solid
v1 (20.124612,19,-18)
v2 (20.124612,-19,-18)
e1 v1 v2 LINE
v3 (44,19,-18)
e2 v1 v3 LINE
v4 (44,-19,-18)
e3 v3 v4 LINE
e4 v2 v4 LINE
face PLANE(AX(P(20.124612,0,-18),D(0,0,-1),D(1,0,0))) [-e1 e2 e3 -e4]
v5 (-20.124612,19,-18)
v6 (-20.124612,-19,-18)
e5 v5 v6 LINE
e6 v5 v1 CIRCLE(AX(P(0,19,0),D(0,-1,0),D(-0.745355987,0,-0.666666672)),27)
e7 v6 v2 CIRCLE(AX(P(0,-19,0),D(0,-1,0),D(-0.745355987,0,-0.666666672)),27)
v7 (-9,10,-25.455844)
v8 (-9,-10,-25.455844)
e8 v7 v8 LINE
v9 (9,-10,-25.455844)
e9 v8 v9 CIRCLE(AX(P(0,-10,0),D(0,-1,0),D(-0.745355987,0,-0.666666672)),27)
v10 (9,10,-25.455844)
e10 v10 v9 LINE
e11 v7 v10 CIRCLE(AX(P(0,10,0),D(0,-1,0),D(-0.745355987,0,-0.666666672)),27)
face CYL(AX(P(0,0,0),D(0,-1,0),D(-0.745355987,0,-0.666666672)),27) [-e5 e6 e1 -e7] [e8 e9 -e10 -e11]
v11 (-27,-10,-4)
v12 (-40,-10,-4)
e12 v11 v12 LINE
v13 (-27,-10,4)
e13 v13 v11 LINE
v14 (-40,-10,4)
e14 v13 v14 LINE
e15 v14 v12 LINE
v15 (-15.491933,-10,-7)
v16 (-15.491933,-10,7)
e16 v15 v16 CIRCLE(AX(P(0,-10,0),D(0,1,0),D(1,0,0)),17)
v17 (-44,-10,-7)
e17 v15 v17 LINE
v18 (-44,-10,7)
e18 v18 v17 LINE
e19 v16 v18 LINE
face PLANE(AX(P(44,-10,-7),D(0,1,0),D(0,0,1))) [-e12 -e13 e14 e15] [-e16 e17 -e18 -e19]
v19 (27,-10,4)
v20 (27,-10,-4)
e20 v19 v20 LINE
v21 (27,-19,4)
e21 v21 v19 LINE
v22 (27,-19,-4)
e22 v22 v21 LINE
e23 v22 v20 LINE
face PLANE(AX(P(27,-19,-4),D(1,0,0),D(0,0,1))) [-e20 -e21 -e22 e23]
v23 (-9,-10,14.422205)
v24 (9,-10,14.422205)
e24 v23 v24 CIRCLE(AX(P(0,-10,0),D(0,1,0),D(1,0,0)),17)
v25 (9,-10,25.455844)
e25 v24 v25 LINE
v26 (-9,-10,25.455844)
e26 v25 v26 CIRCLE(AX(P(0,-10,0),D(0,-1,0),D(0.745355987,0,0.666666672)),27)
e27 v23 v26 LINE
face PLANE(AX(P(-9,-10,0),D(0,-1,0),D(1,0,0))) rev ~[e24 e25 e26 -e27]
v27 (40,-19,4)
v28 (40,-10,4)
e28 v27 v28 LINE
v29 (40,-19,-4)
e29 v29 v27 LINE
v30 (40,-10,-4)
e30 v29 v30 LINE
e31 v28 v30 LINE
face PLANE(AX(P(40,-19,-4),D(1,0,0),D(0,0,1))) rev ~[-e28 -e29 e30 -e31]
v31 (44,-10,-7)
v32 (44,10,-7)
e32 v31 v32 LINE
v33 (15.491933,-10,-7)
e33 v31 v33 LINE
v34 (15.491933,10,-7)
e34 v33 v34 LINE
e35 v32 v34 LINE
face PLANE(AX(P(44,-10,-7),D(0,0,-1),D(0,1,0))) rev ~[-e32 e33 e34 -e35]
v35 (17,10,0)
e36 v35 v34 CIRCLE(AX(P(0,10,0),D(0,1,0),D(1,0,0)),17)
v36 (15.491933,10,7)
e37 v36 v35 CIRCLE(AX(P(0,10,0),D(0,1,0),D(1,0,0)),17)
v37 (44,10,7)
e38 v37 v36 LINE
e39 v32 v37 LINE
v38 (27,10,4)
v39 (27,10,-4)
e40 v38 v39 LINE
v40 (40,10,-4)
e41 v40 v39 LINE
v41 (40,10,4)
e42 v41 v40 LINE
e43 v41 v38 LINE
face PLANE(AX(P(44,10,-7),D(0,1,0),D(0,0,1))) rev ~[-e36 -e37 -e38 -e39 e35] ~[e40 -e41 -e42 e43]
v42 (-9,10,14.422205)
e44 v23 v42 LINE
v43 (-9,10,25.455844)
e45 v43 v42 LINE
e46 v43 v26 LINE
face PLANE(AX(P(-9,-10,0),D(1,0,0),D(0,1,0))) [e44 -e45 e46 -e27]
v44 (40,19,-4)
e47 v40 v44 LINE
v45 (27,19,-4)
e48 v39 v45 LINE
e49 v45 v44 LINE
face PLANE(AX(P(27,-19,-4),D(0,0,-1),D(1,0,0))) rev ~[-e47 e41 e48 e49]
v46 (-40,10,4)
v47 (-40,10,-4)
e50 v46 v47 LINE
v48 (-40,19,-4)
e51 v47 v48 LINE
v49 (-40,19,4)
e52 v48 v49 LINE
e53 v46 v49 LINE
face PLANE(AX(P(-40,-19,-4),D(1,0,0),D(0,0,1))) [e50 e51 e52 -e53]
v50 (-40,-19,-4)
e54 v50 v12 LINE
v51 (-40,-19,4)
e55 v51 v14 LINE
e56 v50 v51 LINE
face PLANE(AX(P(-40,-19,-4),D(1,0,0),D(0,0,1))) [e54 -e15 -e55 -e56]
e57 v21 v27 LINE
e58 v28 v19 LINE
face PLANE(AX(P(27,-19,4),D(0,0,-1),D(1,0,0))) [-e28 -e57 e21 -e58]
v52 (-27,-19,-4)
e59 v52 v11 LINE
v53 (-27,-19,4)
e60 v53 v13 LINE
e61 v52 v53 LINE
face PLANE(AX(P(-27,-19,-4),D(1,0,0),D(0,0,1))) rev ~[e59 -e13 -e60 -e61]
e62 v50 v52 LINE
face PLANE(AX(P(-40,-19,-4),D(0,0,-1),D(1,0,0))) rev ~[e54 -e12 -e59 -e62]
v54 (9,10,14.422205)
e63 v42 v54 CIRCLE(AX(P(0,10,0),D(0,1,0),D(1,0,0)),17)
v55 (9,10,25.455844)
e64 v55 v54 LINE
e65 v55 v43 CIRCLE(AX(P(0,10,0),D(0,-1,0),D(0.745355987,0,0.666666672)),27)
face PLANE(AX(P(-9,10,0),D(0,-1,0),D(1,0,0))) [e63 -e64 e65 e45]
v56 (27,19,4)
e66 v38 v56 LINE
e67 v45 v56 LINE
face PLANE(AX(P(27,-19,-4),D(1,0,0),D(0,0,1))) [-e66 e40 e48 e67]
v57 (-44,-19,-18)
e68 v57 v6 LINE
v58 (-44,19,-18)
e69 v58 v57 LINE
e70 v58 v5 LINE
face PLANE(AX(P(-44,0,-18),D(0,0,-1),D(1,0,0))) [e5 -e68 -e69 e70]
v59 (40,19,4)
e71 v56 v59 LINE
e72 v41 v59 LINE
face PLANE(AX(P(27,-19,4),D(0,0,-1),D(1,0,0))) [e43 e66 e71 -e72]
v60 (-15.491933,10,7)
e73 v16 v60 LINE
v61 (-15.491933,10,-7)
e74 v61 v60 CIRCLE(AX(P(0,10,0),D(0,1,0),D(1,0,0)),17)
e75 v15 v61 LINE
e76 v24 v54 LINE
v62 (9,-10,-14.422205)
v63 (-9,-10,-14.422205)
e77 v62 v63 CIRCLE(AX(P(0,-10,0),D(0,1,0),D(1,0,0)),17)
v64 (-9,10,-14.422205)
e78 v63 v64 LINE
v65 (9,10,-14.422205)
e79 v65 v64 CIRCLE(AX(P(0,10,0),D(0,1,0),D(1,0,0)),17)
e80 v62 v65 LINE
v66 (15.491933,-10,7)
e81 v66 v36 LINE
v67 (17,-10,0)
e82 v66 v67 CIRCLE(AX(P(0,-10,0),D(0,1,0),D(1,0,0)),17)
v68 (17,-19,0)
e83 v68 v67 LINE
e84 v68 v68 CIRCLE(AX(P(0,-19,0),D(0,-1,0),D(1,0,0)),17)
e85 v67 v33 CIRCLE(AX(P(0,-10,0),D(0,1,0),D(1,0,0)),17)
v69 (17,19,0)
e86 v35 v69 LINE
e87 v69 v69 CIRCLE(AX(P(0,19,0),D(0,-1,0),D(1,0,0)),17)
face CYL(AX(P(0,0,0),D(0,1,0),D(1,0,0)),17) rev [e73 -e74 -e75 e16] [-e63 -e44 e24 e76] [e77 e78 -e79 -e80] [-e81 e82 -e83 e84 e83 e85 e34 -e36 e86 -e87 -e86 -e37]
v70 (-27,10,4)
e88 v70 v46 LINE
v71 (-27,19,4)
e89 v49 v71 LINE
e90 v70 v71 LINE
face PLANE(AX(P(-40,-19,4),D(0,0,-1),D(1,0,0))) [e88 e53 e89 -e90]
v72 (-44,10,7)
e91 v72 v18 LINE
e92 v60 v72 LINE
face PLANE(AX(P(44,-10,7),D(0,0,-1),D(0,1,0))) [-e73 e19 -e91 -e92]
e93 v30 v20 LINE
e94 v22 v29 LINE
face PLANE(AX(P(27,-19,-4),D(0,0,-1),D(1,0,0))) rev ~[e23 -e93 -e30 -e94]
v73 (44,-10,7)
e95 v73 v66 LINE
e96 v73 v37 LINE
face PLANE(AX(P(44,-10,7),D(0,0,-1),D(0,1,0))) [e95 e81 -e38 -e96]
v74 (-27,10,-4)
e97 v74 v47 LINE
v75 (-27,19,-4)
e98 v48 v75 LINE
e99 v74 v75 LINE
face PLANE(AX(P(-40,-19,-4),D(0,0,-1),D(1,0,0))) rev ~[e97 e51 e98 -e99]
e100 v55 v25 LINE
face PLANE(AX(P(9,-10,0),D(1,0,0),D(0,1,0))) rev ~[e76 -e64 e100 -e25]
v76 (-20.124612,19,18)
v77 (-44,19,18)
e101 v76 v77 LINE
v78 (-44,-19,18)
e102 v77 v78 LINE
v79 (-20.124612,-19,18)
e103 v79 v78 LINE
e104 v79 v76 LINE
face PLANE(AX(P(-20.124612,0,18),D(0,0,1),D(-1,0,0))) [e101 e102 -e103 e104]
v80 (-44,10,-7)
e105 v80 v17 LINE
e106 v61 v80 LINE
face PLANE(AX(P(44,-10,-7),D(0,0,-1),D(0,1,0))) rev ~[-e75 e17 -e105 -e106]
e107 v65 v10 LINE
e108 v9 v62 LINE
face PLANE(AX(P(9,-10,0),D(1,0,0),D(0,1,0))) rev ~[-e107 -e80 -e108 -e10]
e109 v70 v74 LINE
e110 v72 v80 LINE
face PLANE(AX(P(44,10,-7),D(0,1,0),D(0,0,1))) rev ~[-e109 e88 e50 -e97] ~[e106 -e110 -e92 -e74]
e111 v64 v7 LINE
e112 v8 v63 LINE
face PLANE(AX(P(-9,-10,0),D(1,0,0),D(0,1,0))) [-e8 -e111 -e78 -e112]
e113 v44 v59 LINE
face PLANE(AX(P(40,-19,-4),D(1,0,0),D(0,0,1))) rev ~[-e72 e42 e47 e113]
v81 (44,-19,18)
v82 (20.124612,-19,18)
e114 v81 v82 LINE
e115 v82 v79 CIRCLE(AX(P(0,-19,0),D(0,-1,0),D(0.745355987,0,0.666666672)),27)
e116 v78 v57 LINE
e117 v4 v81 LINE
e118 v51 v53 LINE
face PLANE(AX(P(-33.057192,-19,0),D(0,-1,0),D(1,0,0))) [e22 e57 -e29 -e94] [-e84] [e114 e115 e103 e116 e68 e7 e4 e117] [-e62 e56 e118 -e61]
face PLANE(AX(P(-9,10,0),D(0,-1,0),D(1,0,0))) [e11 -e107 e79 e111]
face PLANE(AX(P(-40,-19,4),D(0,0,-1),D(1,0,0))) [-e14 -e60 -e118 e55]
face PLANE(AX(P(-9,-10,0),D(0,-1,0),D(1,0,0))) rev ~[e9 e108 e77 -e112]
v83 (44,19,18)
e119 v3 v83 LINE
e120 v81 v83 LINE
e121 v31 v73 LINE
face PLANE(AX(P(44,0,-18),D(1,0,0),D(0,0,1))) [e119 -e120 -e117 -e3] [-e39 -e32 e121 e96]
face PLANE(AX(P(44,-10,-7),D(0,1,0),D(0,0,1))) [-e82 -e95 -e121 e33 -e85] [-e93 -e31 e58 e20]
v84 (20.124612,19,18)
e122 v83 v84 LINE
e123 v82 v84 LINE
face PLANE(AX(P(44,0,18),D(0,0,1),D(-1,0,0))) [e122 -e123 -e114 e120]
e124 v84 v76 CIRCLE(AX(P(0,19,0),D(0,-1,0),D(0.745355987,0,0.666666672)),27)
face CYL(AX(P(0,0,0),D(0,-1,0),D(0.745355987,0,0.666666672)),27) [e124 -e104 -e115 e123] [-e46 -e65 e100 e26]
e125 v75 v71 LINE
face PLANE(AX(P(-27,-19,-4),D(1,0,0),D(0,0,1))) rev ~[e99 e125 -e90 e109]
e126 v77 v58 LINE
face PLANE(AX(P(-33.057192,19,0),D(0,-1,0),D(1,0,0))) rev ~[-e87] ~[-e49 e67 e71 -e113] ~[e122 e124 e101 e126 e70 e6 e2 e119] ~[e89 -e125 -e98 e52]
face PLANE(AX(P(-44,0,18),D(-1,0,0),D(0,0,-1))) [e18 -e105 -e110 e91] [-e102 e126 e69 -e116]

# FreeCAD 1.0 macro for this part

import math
import FreeCAD as App
import Part
import Sketcher

V = App.Vector


def add_polygon(sketch, points):
    """Adds a closed chain of lines whose ends are joined by coincident constraints."""
    first, n = sketch.GeometryCount, len(points)
    for a, b in zip(points, points[1:] + points[:1]):
        sketch.addGeometry(Part.LineSegment(App.Vector(*a, 0), App.Vector(*b, 0)), False)
    for i in range(n):
        sketch.addConstraint(Sketcher.Constraint("Coincident", first + i, 2, first + (i + 1) % n, 1))

doc = App.newDocument("Part")
body = doc.addObject("PartDesign::Body", "Body")

# Sketch on XZ plane
sketch1 = body.newObject("Sketcher::SketchObject", "Sketch")
sketch1.AttachmentSupport = (doc.getObject("XZ_Plane"), [""])
sketch1.MapMode = "FlatFace"
sketch1.addGeometry([
    Part.LineSegment(V(-20, 18, 0), V(-44, 18, 0)),  # 0
    Part.LineSegment(V(-44, 18, 0), V(-44, -18, 0)),  # 1
    Part.LineSegment(V(-44, -18, 0), V(-20, -18, 0)),  # 2
    Part.ArcOfCircle(Part.Circle(V(0, 0, 0), V(0, 0, 1), 27), math.radians(-138), math.radians(-42)),  # 3
    Part.LineSegment(V(20, -18, 0), V(44, -18, 0)),  # 4
    Part.LineSegment(V(44, -18, 0), V(44, 18, 0)),  # 5
    Part.LineSegment(V(44, 18, 0), V(20, 18, 0)),  # 6
    Part.ArcOfCircle(Part.Circle(V(0, 0, 0), V(0, 0, 1), 27), math.radians(42), math.radians(138)),  # 7
    Part.Circle(V(0, 0, 0), V(0, 0, 1), 17),  # 8
], False)
sketch1.addConstraint([
    Sketcher.Constraint("Coincident", 0, 2, 1, 1),
    Sketcher.Constraint("Coincident", 1, 2, 2, 1),
    Sketcher.Constraint("Coincident", 2, 2, 3, 1),
    Sketcher.Constraint("Coincident", 3, 2, 4, 1),
    Sketcher.Constraint("Coincident", 4, 2, 5, 1),
    Sketcher.Constraint("Coincident", 5, 2, 6, 1),
    Sketcher.Constraint("Coincident", 6, 2, 7, 1),
    Sketcher.Constraint("Coincident", 7, 2, 0, 1),
    Sketcher.Constraint("Horizontal", 0),
    Sketcher.Constraint("Vertical", 1),
    Sketcher.Constraint("Horizontal", 2),
    Sketcher.Constraint("Horizontal", 4),
    Sketcher.Constraint("Vertical", 5),
    Sketcher.Constraint("Horizontal", 6),
    Sketcher.Constraint("Coincident", 3, 3, -1, 1),
    Sketcher.Constraint("Coincident", 7, 3, -1, 1),
    Sketcher.Constraint("Coincident", 8, 3, -1, 1),
    Sketcher.Constraint("Equal", 3, 7),
    Sketcher.Constraint("Symmetric", 0, 2, 4, 2, -1, 1),
    Sketcher.Constraint("Horizontal", 2, 2, 3, 2),
    Sketcher.Constraint("Horizontal", 0, 2, 5, 2),
    Sketcher.Constraint("Diameter", 8, 34.0),
    Sketcher.Constraint("Radius", 3, 27.0),
    Sketcher.Constraint("DistanceY", 1, 2, 1, 1, 36.0),
    Sketcher.Constraint("DistanceX", 0, 2, -1, 1, 44.0),
])
pad1 = body.newObject("PartDesign::Pad", "Pad")
pad1.Profile = sketch1
pad1.Length = 38
pad1.Midplane = True

# Sketch on YZ plane
sketch2 = body.newObject("Sketcher::SketchObject", "Sketch001")
sketch2.AttachmentSupport = (doc.getObject("YZ_Plane"), [""])
sketch2.MapMode = "FlatFace"
sketch2.AttachmentOffset = App.Placement(V(0, 0, 44), App.Rotation())
add_polygon(sketch2, [(-10, 7), (-10, -7), (10, -7), (10, 7)])  # lines 0-3
sketch2.addConstraint([
    Sketcher.Constraint("Vertical", 0),
    Sketcher.Constraint("Horizontal", 1),
    Sketcher.Constraint("Vertical", 2),
    Sketcher.Constraint("Horizontal", 3),
    Sketcher.Constraint("Symmetric", 0, 2, 2, 2, -1, 1),
    Sketcher.Constraint("DistanceX", 1, 1, 1, 2, 20.0),
    Sketcher.Constraint("DistanceY", 0, 2, 0, 1, 14.0),
])
pocket1 = body.newObject("PartDesign::Pocket", "Pocket")
pocket1.Profile = sketch2
pocket1.Type = "ThroughAll"

# Sketch on XZ plane
sketch3 = body.newObject("Sketcher::SketchObject", "Sketch002")
sketch3.AttachmentSupport = (doc.getObject("XZ_Plane"), [""])
sketch3.MapMode = "FlatFace"
sketch3.AttachmentOffset = App.Placement(V(0, 0, 19), App.Rotation())
add_polygon(sketch3, [(-40, 4), (-40, -4), (-27, -4), (-27, 4)])  # lines 0-3
add_polygon(sketch3, [(27, 4), (27, -4), (40, -4), (40, 4)])  # lines 4-7
sketch3.addConstraint([
    Sketcher.Constraint("Vertical", 0),
    Sketcher.Constraint("Horizontal", 1),
    Sketcher.Constraint("Vertical", 2),
    Sketcher.Constraint("Horizontal", 3),
    Sketcher.Constraint("Vertical", 4),
    Sketcher.Constraint("Horizontal", 5),
    Sketcher.Constraint("Vertical", 6),
    Sketcher.Constraint("Horizontal", 7),
    Sketcher.Constraint("Symmetric", 2, 2, 4, 2, -1, 1),
    Sketcher.Constraint("Symmetric", 0, 2, 6, 2, -1, 1),
    Sketcher.Constraint("Horizontal", 1, 2, 4, 2),
    Sketcher.Constraint("DistanceX", 1, 1, 1, 2, 13.0),
    Sketcher.Constraint("DistanceY", 0, 2, 0, 1, 8.0),
    Sketcher.Constraint("DistanceX", 0, 2, -1, 1, 40.0),
])
pocket2 = body.newObject("PartDesign::Pocket", "Pocket001")
pocket2.Profile = sketch3
pocket2.Type = "ThroughAll"

# Sketch on XY plane
sketch4 = body.newObject("Sketcher::SketchObject", "Sketch003")
sketch4.AttachmentSupport = (doc.getObject("XY_Plane"), [""])
sketch4.MapMode = "FlatFace"
add_polygon(sketch4, [(-9, 10), (-9, -10), (9, -10), (9, 10)])  # lines 0-3
sketch4.addConstraint([
    Sketcher.Constraint("Vertical", 0),
    Sketcher.Constraint("Horizontal", 1),
    Sketcher.Constraint("Vertical", 2),
    Sketcher.Constraint("Horizontal", 3),
    Sketcher.Constraint("Symmetric", 0, 2, 2, 2, -1, 1),
    Sketcher.Constraint("DistanceX", 1, 1, 1, 2, 18.0),
    Sketcher.Constraint("DistanceY", 0, 2, 0, 1, 20.0),
])
pocket3 = body.newObject("PartDesign::Pocket", "Pocket002")
pocket3.Profile = sketch4
pocket3.Length = 100
pocket3.Midplane = True

doc.recompute()
